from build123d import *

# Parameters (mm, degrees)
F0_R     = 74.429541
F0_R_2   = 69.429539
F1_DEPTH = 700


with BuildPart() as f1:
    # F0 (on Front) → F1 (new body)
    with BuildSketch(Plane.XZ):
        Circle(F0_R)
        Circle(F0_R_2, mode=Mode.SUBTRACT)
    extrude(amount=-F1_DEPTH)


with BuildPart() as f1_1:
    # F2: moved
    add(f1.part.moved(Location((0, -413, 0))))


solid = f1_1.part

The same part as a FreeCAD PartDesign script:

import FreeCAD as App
import Part
import Sketcher
Q = App.Units.Quantity

doc = App.newDocument("Part")
params = doc.addObject("Spreadsheet::Sheet", "Params")
for row, (alias, value) in enumerate([
    ("pad1_length", "700 mm"),
], start=1):
    params.set(f"A{row}", alias)
    params.set(f"B{row}", "=" + value)
    params.setAlias(f"B{row}", alias)

body = doc.addObject("PartDesign::Body", "Body")

sketch1 = body.newObject("Sketcher::SketchObject", "Sketch")
sketch1.AttachmentSupport = (doc.getObject("XZ_Plane"), [""])
sketch1.MapMode = "FlatFace"
sketch1.addGeometry([
    Part.Circle(App.Vector(0, 0, 0), App.Vector(0, 0, 1), 74.429541),
    Part.Circle(App.Vector(0, 0, 0), App.Vector(0, 0, 1), 69.429539),
], False)
sketch1.addConstraint([
    Sketcher.Constraint("Coincident", 0, 3, -1, 1),
    Sketcher.Constraint("Coincident", 1, 3, -1, 1),
    Sketcher.Constraint("Diameter", 0, Q("148.859082 mm")),
    Sketcher.Constraint("Diameter", 1, Q("138.859078 mm")),
])
pad1 = body.newObject("PartDesign::Pad", "Pad")
pad1.Profile = sketch1
pad1.setExpression("Length", "Params.pad1_length")
pad1.Reversed = True
body2 = doc.addObject("PartDesign::Body", "Body001")
doc.recompute()

body.Placement = App.Placement(App.Vector(0, -413, 0), App.Rotation(App.Vector(0, 0, 1), 0))
boolean = body2.newObject("PartDesign::Boolean", "Boolean")
boolean.Type = "Fuse"
boolean.addObjects([body])

doc.recompute()
